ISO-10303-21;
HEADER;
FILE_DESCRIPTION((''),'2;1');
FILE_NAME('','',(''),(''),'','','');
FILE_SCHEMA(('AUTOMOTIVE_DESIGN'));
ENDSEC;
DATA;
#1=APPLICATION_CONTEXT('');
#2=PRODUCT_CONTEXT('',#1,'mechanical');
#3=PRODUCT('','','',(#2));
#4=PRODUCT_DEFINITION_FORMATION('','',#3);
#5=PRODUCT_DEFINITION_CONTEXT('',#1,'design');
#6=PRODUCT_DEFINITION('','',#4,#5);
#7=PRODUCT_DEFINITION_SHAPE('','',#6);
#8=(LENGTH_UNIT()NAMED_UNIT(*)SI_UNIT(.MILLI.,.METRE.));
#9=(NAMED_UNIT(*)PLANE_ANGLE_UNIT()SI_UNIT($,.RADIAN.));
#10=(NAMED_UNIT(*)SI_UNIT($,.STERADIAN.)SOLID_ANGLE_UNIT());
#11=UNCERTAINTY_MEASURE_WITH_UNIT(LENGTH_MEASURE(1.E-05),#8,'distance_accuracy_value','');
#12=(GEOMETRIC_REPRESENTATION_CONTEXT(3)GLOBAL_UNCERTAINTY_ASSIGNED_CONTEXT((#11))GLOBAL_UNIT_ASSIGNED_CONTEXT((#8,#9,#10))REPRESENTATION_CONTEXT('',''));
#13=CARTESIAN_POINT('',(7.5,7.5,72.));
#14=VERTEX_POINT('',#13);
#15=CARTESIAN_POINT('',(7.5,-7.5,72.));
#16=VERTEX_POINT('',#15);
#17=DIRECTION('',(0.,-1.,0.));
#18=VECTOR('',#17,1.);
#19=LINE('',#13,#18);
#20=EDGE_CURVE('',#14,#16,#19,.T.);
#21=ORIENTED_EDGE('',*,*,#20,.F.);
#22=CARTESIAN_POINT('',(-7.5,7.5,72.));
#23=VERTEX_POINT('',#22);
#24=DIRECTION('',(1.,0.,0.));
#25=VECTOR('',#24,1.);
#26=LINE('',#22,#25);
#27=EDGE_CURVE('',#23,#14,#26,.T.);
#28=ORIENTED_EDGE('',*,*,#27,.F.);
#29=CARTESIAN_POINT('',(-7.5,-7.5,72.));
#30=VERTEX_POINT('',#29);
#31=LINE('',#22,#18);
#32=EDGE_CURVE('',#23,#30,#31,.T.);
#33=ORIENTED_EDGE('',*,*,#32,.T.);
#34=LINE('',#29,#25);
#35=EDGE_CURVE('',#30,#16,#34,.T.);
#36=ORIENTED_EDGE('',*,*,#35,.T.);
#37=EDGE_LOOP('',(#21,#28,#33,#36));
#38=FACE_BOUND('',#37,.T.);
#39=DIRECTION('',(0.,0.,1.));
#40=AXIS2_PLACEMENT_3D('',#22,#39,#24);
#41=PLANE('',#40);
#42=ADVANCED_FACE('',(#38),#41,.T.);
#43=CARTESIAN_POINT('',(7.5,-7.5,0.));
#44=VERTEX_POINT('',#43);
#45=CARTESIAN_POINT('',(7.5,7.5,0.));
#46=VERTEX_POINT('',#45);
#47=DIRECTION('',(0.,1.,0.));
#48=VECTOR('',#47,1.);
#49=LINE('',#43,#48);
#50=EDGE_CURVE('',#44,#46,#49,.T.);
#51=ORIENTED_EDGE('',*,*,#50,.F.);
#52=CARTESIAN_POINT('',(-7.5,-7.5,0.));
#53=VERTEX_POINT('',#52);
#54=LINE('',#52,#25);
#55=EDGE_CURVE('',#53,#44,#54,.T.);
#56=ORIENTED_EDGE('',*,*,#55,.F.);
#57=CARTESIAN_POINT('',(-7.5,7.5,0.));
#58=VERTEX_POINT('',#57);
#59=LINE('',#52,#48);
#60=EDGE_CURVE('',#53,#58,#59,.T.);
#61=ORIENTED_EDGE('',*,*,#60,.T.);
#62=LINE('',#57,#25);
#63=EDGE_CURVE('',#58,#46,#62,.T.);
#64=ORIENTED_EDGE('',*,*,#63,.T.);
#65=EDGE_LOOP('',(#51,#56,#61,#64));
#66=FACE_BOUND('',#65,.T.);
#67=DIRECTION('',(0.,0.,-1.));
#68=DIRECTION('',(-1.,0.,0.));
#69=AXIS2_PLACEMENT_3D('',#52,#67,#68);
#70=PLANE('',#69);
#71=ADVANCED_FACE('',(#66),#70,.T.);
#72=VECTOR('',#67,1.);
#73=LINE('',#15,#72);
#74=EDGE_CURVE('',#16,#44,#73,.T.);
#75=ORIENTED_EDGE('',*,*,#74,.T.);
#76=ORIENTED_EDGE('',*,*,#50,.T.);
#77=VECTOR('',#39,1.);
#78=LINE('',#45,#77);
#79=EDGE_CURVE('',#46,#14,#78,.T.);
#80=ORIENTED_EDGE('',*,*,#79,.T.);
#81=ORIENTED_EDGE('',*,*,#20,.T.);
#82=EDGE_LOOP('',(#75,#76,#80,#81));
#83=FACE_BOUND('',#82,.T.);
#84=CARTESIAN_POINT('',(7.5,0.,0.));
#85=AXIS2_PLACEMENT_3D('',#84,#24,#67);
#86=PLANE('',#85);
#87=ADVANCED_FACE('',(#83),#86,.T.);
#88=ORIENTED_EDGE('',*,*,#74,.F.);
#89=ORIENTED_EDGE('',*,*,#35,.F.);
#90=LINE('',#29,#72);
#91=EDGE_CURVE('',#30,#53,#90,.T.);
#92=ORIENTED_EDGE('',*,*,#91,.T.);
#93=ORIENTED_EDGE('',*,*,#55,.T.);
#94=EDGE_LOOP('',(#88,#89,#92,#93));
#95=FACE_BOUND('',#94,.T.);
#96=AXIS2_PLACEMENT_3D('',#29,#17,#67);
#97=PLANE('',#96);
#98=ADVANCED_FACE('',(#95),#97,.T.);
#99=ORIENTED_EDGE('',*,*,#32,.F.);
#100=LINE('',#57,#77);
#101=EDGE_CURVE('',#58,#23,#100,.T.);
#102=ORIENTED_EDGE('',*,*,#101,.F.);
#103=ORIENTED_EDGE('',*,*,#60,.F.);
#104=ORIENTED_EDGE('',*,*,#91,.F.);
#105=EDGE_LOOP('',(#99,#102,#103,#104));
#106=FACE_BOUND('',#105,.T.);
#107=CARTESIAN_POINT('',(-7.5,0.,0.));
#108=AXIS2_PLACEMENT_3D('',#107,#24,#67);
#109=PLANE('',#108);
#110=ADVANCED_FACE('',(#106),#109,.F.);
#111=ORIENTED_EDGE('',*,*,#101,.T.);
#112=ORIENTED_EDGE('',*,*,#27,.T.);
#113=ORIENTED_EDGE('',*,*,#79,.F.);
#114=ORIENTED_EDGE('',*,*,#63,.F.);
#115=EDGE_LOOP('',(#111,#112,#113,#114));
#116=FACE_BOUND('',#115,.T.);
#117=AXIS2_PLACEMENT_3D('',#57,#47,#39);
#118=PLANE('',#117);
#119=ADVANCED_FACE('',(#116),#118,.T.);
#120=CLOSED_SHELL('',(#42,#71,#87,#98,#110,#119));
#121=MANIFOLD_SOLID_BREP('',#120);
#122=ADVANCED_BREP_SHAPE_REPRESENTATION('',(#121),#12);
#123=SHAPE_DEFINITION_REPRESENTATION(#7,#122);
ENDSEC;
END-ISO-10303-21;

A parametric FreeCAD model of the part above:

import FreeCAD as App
import Part
import Sketcher
Q = App.Units.Quantity


def add_polygon(sketch, points):
    """Adds a closed chain of lines whose ends are joined by coincident constraints."""
    first, n = sketch.GeometryCount, len(points)
    for a, b in zip(points, points[1:] + points[:1]):
        sketch.addGeometry(Part.LineSegment(App.Vector(*a, 0), App.Vector(*b, 0)), False)
    for i in range(n):
        sketch.addConstraint(Sketcher.Constraint("Coincident", first + i, 2, first + (i + 1) % n, 1))

doc = App.newDocument("Part")
body = doc.addObject("PartDesign::Body", "Body")

# Sketch on YZ plane
sketch1 = body.newObject("Sketcher::SketchObject", "Sketch")
sketch1.AttachmentSupport = (doc.getObject("YZ_Plane"), [""])
sketch1.MapMode = "FlatFace"
sketch1.AttachmentOffset = App.Placement(App.Vector(0, 0, 7.5), App.Rotation())
add_polygon(sketch1, [(8, 72), (-8, 72), (-8, 0), (8, 0)])  # lines 0-3
sketch1.addConstraint(Sketcher.Constraint("Horizontal", 0))
sketch1.addConstraint(Sketcher.Constraint("Vertical", 1))
sketch1.addConstraint(Sketcher.Constraint("Horizontal", 2))
sketch1.addConstraint(Sketcher.Constraint("Vertical", 3))
sketch1.addConstraint(Sketcher.Constraint("Symmetric", 1, 2, 2, 2, -1, 1))
sketch1.addConstraint(Sketcher.Constraint("DistanceX", 0, 2, 0, 1, Q("15 mm")))
sketch1.addConstraint(Sketcher.Constraint("DistanceY", 1, 2, 1, 1, Q("72 mm")))
pad1 = body.newObject("PartDesign::Pad", "Pad")
pad1.Profile = sketch1
pad1.Length = 15
pad1.Reversed = True

doc.recompute()
